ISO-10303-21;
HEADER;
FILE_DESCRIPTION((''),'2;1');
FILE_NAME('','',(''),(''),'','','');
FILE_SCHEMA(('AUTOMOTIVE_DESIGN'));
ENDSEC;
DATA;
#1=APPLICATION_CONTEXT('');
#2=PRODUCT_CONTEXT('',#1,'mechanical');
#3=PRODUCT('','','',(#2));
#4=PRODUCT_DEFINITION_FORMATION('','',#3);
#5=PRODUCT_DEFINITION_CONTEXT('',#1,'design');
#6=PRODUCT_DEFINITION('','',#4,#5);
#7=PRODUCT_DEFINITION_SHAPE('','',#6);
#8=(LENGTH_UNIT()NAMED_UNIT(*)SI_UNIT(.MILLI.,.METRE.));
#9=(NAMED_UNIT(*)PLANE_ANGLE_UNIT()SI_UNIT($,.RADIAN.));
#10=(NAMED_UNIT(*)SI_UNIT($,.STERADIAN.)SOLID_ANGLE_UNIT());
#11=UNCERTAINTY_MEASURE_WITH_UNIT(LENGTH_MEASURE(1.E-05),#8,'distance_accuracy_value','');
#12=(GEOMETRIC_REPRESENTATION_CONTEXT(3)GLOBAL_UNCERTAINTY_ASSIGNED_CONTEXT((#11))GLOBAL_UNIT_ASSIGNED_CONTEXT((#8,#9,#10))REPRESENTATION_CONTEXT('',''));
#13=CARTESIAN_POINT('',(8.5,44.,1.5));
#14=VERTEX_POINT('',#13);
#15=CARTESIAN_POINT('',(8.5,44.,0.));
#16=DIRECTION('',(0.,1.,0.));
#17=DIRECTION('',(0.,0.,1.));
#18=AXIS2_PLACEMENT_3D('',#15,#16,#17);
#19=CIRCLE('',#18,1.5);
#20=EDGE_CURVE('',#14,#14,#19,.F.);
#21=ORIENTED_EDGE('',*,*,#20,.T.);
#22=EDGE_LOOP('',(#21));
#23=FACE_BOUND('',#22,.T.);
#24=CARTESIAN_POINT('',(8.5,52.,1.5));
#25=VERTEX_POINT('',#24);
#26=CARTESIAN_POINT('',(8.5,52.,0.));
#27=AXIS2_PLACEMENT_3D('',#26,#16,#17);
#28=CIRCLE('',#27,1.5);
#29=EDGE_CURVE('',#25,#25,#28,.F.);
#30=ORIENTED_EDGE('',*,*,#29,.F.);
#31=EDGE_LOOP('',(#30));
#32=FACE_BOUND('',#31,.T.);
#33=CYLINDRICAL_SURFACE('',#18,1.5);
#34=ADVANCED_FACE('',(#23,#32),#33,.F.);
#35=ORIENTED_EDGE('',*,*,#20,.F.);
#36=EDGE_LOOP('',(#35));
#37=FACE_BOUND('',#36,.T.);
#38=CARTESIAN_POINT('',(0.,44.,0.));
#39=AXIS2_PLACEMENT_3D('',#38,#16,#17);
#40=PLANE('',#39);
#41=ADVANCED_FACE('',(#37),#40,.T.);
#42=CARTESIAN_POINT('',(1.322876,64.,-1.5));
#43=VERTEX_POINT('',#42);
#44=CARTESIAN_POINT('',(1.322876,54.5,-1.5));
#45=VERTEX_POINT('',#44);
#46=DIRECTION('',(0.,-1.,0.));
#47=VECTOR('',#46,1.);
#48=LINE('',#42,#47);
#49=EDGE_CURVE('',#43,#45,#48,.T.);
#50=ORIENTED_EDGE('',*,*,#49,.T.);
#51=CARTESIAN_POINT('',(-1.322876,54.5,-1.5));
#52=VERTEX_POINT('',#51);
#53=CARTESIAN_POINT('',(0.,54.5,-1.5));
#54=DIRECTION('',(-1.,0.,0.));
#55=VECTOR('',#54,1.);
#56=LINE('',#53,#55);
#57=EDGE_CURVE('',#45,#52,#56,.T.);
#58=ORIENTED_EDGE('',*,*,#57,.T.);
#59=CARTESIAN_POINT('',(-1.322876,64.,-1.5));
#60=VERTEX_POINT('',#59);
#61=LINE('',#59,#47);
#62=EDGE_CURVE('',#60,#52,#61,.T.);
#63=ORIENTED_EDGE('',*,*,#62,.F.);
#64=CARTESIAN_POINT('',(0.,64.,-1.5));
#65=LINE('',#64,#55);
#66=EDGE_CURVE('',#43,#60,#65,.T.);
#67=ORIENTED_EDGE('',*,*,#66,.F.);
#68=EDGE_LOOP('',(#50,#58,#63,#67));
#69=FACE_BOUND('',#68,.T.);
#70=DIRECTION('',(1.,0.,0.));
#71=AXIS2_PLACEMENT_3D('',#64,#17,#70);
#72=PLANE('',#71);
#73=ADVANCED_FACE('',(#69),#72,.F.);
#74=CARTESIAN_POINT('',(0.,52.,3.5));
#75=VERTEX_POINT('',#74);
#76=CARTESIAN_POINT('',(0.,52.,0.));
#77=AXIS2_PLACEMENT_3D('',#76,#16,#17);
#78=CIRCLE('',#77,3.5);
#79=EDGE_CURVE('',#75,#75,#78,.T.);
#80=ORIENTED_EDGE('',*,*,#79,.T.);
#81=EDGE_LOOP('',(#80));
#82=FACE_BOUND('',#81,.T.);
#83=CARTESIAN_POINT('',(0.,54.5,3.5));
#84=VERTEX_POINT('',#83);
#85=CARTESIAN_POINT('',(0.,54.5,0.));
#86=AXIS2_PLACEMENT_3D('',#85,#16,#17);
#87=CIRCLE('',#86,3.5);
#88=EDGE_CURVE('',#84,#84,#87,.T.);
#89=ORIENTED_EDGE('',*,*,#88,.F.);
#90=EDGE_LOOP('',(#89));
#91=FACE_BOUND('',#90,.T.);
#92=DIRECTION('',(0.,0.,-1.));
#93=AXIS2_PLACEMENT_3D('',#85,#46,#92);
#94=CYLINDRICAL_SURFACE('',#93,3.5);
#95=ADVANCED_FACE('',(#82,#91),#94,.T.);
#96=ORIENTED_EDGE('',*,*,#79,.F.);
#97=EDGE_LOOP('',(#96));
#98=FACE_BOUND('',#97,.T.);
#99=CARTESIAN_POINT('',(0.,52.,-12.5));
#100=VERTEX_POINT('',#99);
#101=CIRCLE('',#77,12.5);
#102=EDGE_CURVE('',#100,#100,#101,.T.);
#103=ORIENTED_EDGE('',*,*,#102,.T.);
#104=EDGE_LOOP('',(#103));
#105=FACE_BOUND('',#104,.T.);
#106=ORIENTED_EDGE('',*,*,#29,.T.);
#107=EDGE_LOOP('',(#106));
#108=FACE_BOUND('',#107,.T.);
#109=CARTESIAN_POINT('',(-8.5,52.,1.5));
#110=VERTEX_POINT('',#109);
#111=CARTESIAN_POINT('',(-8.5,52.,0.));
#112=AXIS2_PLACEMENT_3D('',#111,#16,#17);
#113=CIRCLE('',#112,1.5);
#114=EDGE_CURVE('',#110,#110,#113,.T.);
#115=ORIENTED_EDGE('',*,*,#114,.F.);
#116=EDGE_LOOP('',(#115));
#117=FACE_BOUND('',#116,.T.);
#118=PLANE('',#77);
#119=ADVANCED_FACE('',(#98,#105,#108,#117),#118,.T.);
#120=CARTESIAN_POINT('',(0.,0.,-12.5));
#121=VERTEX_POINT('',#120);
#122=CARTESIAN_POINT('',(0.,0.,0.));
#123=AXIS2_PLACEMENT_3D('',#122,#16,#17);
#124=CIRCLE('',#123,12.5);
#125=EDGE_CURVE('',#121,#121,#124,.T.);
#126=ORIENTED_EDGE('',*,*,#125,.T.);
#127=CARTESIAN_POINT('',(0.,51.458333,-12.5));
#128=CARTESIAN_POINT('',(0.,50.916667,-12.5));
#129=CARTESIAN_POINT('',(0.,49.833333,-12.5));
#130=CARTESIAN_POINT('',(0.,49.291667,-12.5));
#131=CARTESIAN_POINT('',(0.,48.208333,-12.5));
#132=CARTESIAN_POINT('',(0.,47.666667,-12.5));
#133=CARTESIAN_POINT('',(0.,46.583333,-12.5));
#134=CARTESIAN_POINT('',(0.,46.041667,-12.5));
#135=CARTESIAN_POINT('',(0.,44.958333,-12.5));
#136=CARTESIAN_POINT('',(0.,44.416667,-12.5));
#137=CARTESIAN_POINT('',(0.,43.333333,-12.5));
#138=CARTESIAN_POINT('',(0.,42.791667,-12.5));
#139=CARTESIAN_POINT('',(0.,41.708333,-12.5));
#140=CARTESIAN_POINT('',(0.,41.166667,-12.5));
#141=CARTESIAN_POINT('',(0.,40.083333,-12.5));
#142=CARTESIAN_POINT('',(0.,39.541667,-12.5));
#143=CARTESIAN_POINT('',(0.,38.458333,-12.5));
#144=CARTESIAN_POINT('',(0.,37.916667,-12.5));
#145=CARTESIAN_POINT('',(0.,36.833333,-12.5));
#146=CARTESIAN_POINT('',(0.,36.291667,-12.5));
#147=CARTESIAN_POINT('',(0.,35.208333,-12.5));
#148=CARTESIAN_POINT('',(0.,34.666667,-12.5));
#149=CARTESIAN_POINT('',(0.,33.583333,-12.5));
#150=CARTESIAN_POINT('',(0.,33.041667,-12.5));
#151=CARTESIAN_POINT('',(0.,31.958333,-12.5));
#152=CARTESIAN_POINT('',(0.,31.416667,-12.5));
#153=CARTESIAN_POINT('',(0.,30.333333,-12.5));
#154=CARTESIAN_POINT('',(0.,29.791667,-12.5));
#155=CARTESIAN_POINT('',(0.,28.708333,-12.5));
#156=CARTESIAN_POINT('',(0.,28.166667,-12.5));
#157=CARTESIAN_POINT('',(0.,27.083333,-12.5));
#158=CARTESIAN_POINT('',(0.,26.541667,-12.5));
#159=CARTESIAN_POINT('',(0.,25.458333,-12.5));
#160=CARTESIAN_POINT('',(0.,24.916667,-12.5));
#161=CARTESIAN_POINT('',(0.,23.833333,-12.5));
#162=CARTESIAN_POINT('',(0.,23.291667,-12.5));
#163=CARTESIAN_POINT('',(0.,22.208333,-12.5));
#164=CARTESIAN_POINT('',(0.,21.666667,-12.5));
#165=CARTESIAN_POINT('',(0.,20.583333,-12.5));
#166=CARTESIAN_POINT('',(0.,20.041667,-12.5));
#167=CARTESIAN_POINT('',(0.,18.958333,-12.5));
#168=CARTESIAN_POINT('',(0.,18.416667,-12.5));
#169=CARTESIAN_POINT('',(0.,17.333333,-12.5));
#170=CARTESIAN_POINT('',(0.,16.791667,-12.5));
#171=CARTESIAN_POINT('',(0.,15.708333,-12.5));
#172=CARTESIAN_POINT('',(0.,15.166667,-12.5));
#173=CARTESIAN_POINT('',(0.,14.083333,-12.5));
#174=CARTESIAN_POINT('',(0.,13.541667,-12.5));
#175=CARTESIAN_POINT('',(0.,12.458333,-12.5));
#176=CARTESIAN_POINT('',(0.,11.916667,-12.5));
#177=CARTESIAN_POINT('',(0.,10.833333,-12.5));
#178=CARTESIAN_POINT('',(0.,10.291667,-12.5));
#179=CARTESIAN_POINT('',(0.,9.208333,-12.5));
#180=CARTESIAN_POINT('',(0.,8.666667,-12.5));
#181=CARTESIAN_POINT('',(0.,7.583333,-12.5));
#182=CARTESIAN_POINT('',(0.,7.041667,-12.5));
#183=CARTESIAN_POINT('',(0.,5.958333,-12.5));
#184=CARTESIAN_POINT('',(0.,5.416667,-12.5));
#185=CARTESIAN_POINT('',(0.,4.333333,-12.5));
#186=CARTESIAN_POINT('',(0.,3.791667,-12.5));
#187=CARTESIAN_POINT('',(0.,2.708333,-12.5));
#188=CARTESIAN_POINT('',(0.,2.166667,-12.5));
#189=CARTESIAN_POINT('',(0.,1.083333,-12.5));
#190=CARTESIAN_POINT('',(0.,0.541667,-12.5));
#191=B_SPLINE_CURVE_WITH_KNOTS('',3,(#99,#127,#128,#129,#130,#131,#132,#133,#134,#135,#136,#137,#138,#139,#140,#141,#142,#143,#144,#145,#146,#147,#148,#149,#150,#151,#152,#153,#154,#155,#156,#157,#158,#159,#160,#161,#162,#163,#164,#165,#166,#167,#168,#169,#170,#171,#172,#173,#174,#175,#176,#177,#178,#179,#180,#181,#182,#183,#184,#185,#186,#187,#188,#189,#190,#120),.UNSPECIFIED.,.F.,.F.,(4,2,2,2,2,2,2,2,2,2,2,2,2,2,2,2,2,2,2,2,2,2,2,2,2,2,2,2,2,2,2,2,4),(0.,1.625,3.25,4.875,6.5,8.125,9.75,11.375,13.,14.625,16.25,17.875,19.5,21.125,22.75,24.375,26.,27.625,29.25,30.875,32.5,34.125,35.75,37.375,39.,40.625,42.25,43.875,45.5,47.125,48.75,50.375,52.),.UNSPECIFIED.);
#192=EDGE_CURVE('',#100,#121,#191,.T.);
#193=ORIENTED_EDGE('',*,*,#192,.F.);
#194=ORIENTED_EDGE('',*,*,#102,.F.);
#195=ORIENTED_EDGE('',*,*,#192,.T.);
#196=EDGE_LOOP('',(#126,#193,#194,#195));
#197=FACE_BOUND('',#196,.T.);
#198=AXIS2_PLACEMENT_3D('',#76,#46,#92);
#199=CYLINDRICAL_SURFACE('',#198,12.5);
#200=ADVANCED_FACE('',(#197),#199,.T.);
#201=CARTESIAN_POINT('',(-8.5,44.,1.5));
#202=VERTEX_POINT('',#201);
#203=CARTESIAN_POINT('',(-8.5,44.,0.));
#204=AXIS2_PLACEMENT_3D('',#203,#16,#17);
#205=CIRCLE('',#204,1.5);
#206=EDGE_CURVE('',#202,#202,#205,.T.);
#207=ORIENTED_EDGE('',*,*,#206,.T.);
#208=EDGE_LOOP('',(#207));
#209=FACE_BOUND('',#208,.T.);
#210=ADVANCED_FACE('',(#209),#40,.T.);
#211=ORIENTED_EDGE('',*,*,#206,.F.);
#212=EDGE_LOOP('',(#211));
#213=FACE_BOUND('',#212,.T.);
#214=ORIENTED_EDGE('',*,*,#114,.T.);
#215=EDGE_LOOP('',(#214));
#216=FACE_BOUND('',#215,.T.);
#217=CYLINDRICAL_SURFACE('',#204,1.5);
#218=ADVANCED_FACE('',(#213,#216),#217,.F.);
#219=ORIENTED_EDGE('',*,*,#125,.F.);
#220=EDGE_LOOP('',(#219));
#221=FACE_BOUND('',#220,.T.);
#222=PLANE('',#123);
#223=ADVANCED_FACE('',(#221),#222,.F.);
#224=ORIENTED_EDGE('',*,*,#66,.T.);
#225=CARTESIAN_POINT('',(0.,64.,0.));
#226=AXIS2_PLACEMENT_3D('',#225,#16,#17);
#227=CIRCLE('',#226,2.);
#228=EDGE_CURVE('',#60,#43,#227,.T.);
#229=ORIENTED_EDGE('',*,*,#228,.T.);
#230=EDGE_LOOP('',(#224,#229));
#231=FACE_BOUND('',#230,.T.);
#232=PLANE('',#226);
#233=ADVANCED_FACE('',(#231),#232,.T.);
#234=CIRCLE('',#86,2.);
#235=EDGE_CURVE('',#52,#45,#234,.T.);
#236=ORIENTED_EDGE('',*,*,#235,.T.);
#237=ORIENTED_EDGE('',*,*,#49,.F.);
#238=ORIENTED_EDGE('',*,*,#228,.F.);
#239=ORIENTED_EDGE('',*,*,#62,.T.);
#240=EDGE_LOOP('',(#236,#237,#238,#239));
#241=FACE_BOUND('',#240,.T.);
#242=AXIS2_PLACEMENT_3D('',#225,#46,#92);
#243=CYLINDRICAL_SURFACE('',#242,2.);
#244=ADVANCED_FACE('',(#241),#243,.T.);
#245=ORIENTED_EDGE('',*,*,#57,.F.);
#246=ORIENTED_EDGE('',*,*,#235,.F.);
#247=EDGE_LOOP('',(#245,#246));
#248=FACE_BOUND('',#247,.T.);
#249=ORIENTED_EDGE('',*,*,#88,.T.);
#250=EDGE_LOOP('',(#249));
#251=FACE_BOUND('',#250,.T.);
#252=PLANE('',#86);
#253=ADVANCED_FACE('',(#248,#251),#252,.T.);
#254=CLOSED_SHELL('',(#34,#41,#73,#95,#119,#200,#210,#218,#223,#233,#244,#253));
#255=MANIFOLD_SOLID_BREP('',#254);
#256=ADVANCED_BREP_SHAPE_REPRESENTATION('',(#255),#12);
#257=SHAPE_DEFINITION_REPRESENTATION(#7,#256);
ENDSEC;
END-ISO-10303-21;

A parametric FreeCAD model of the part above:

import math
import FreeCAD as App
import Part
import Sketcher
Q = App.Units.Quantity

doc = App.newDocument("Part")
params = doc.addObject("Spreadsheet::Sheet", "Params")
for row, (alias, value) in enumerate([
    ("sketch1_diameter", "25 mm"),
    ("pad1_length", "52 mm"),
    ("sketch2_diameter", "7 mm"),
    ("pad2_length", "2.5 mm"),
    ("sketch3_radius", "2 mm"),
    ("pad3_length", "9.5 mm"),
    ("sketch4_diameter", "3 mm"),
    ("pocket1_length", "8 mm"),
], start=1):
    params.set(f"A{row}", alias)
    params.set(f"B{row}", "=" + value)
    params.setAlias(f"B{row}", alias)

body = doc.addObject("PartDesign::Body", "Body")

sketch1 = body.newObject("Sketcher::SketchObject", "Sketch")
sketch1.AttachmentSupport = (doc.getObject("XZ_Plane"), [""])
sketch1.MapMode = "FlatFace"
sketch1.addGeometry(Part.Circle(App.Vector(0, 0, 0), App.Vector(0, 0, 1), 12), False)
sketch1.addConstraint([
    Sketcher.Constraint("Coincident", 0, 3, -1, 1),
    Sketcher.Constraint("Diameter", 0, Q("25 mm")),
])
sketch1.setExpression("Constraints[1]", "Params.sketch1_diameter")
pad1 = body.newObject("PartDesign::Pad", "Pad")
pad1.Profile = sketch1
pad1.setExpression("Length", "Params.pad1_length")
pad1.Reversed = True

sketch2 = body.newObject("Sketcher::SketchObject", "Sketch001")
sketch2.AttachmentSupport = (doc.getObject("XZ_Plane"), [""])
sketch2.MapMode = "FlatFace"
sketch2.AttachmentOffset = App.Placement(App.Vector(0, 0, -52), App.Rotation())
sketch2.addGeometry(Part.Circle(App.Vector(0, 0, 0), App.Vector(0, 0, 1), 3.5), False)
sketch2.addConstraint([
    Sketcher.Constraint("Coincident", 0, 3, -1, 1),
    Sketcher.Constraint("Diameter", 0, Q("7 mm")),
])
sketch2.setExpression("Constraints[1]", "Params.sketch2_diameter")
pad2 = body.newObject("PartDesign::Pad", "Pad001")
pad2.Profile = sketch2
pad2.setExpression("Length", "Params.pad2_length")
pad2.Reversed = True

sketch3 = body.newObject("Sketcher::SketchObject", "Sketch002")
sketch3.AttachmentSupport = (doc.getObject("XZ_Plane"), [""])
sketch3.MapMode = "FlatFace"
sketch3.AttachmentOffset = App.Placement(App.Vector(0, 0, -54.5), App.Rotation())
sketch3.addGeometry([
    Part.ArcOfCircle(Part.Circle(App.Vector(0, 0, 0), App.Vector(0, 0, 1), 2), math.radians(90), math.radians(229)),
    Part.ArcOfCircle(Part.Circle(App.Vector(0, 0, 0), App.Vector(0, 0, 1), 2), math.radians(-49), math.radians(90)),
    Part.LineSegment(App.Vector(1.3, -1.5, 0), App.Vector(-1.3, -1.5, 0)),
], False)
sketch3.addConstraint([
    Sketcher.Constraint("Tangent", 0, 1, 1, 2),
    Sketcher.Constraint("Coincident", 1, 1, 2, 1),
    Sketcher.Constraint("Coincident", 2, 2, 0, 2),
    Sketcher.Constraint("Horizontal", 2),
    Sketcher.Constraint("Coincident", 0, 3, -1, 1),
    Sketcher.Constraint("Equal", 0, 1),
    Sketcher.Constraint("PointOnObject", 0, 1, -2),
    Sketcher.Constraint("Radius", 0, Q("2 mm")),
    Sketcher.Constraint("DistanceY", 1, 1, -1, 1, Q("1.5 mm")),
])
sketch3.setExpression("Constraints[7]", "Params.sketch3_radius")
pad3 = body.newObject("PartDesign::Pad", "Pad002")
pad3.Profile = sketch3
pad3.setExpression("Length", "Params.pad3_length")
pad3.Reversed = True

sketch4 = body.newObject("Sketcher::SketchObject", "Sketch003")
sketch4.AttachmentSupport = (doc.getObject("XZ_Plane"), [""])
sketch4.MapMode = "FlatFace"
sketch4.AttachmentOffset = App.Placement(App.Vector(0, 0, -52), App.Rotation())
sketch4.addGeometry([
    Part.Circle(App.Vector(-8.5, 0, 0), App.Vector(0, 0, 1), 1.5),
    Part.Circle(App.Vector(8.5, 0, 0), App.Vector(0, 0, 1), 1.5),
], False)
sketch4.addConstraint([
    Sketcher.Constraint("Equal", 0, 1),
    Sketcher.Constraint("Symmetric", 0, 3, 1, 3, -1, 1),
    Sketcher.Constraint("PointOnObject", 0, 3, -1),
    Sketcher.Constraint("Diameter", 0, Q("3 mm")),
    Sketcher.Constraint("DistanceX", 0, 3, 1, 3, Q("17 mm")),
])
sketch4.setExpression("Constraints[3]", "Params.sketch4_diameter")
pocket1 = body.newObject("PartDesign::Pocket", "Pocket")
pocket1.Profile = sketch4
pocket1.setExpression("Length", "Params.pocket1_length")
pocket1.Reversed = True

doc.recompute()
